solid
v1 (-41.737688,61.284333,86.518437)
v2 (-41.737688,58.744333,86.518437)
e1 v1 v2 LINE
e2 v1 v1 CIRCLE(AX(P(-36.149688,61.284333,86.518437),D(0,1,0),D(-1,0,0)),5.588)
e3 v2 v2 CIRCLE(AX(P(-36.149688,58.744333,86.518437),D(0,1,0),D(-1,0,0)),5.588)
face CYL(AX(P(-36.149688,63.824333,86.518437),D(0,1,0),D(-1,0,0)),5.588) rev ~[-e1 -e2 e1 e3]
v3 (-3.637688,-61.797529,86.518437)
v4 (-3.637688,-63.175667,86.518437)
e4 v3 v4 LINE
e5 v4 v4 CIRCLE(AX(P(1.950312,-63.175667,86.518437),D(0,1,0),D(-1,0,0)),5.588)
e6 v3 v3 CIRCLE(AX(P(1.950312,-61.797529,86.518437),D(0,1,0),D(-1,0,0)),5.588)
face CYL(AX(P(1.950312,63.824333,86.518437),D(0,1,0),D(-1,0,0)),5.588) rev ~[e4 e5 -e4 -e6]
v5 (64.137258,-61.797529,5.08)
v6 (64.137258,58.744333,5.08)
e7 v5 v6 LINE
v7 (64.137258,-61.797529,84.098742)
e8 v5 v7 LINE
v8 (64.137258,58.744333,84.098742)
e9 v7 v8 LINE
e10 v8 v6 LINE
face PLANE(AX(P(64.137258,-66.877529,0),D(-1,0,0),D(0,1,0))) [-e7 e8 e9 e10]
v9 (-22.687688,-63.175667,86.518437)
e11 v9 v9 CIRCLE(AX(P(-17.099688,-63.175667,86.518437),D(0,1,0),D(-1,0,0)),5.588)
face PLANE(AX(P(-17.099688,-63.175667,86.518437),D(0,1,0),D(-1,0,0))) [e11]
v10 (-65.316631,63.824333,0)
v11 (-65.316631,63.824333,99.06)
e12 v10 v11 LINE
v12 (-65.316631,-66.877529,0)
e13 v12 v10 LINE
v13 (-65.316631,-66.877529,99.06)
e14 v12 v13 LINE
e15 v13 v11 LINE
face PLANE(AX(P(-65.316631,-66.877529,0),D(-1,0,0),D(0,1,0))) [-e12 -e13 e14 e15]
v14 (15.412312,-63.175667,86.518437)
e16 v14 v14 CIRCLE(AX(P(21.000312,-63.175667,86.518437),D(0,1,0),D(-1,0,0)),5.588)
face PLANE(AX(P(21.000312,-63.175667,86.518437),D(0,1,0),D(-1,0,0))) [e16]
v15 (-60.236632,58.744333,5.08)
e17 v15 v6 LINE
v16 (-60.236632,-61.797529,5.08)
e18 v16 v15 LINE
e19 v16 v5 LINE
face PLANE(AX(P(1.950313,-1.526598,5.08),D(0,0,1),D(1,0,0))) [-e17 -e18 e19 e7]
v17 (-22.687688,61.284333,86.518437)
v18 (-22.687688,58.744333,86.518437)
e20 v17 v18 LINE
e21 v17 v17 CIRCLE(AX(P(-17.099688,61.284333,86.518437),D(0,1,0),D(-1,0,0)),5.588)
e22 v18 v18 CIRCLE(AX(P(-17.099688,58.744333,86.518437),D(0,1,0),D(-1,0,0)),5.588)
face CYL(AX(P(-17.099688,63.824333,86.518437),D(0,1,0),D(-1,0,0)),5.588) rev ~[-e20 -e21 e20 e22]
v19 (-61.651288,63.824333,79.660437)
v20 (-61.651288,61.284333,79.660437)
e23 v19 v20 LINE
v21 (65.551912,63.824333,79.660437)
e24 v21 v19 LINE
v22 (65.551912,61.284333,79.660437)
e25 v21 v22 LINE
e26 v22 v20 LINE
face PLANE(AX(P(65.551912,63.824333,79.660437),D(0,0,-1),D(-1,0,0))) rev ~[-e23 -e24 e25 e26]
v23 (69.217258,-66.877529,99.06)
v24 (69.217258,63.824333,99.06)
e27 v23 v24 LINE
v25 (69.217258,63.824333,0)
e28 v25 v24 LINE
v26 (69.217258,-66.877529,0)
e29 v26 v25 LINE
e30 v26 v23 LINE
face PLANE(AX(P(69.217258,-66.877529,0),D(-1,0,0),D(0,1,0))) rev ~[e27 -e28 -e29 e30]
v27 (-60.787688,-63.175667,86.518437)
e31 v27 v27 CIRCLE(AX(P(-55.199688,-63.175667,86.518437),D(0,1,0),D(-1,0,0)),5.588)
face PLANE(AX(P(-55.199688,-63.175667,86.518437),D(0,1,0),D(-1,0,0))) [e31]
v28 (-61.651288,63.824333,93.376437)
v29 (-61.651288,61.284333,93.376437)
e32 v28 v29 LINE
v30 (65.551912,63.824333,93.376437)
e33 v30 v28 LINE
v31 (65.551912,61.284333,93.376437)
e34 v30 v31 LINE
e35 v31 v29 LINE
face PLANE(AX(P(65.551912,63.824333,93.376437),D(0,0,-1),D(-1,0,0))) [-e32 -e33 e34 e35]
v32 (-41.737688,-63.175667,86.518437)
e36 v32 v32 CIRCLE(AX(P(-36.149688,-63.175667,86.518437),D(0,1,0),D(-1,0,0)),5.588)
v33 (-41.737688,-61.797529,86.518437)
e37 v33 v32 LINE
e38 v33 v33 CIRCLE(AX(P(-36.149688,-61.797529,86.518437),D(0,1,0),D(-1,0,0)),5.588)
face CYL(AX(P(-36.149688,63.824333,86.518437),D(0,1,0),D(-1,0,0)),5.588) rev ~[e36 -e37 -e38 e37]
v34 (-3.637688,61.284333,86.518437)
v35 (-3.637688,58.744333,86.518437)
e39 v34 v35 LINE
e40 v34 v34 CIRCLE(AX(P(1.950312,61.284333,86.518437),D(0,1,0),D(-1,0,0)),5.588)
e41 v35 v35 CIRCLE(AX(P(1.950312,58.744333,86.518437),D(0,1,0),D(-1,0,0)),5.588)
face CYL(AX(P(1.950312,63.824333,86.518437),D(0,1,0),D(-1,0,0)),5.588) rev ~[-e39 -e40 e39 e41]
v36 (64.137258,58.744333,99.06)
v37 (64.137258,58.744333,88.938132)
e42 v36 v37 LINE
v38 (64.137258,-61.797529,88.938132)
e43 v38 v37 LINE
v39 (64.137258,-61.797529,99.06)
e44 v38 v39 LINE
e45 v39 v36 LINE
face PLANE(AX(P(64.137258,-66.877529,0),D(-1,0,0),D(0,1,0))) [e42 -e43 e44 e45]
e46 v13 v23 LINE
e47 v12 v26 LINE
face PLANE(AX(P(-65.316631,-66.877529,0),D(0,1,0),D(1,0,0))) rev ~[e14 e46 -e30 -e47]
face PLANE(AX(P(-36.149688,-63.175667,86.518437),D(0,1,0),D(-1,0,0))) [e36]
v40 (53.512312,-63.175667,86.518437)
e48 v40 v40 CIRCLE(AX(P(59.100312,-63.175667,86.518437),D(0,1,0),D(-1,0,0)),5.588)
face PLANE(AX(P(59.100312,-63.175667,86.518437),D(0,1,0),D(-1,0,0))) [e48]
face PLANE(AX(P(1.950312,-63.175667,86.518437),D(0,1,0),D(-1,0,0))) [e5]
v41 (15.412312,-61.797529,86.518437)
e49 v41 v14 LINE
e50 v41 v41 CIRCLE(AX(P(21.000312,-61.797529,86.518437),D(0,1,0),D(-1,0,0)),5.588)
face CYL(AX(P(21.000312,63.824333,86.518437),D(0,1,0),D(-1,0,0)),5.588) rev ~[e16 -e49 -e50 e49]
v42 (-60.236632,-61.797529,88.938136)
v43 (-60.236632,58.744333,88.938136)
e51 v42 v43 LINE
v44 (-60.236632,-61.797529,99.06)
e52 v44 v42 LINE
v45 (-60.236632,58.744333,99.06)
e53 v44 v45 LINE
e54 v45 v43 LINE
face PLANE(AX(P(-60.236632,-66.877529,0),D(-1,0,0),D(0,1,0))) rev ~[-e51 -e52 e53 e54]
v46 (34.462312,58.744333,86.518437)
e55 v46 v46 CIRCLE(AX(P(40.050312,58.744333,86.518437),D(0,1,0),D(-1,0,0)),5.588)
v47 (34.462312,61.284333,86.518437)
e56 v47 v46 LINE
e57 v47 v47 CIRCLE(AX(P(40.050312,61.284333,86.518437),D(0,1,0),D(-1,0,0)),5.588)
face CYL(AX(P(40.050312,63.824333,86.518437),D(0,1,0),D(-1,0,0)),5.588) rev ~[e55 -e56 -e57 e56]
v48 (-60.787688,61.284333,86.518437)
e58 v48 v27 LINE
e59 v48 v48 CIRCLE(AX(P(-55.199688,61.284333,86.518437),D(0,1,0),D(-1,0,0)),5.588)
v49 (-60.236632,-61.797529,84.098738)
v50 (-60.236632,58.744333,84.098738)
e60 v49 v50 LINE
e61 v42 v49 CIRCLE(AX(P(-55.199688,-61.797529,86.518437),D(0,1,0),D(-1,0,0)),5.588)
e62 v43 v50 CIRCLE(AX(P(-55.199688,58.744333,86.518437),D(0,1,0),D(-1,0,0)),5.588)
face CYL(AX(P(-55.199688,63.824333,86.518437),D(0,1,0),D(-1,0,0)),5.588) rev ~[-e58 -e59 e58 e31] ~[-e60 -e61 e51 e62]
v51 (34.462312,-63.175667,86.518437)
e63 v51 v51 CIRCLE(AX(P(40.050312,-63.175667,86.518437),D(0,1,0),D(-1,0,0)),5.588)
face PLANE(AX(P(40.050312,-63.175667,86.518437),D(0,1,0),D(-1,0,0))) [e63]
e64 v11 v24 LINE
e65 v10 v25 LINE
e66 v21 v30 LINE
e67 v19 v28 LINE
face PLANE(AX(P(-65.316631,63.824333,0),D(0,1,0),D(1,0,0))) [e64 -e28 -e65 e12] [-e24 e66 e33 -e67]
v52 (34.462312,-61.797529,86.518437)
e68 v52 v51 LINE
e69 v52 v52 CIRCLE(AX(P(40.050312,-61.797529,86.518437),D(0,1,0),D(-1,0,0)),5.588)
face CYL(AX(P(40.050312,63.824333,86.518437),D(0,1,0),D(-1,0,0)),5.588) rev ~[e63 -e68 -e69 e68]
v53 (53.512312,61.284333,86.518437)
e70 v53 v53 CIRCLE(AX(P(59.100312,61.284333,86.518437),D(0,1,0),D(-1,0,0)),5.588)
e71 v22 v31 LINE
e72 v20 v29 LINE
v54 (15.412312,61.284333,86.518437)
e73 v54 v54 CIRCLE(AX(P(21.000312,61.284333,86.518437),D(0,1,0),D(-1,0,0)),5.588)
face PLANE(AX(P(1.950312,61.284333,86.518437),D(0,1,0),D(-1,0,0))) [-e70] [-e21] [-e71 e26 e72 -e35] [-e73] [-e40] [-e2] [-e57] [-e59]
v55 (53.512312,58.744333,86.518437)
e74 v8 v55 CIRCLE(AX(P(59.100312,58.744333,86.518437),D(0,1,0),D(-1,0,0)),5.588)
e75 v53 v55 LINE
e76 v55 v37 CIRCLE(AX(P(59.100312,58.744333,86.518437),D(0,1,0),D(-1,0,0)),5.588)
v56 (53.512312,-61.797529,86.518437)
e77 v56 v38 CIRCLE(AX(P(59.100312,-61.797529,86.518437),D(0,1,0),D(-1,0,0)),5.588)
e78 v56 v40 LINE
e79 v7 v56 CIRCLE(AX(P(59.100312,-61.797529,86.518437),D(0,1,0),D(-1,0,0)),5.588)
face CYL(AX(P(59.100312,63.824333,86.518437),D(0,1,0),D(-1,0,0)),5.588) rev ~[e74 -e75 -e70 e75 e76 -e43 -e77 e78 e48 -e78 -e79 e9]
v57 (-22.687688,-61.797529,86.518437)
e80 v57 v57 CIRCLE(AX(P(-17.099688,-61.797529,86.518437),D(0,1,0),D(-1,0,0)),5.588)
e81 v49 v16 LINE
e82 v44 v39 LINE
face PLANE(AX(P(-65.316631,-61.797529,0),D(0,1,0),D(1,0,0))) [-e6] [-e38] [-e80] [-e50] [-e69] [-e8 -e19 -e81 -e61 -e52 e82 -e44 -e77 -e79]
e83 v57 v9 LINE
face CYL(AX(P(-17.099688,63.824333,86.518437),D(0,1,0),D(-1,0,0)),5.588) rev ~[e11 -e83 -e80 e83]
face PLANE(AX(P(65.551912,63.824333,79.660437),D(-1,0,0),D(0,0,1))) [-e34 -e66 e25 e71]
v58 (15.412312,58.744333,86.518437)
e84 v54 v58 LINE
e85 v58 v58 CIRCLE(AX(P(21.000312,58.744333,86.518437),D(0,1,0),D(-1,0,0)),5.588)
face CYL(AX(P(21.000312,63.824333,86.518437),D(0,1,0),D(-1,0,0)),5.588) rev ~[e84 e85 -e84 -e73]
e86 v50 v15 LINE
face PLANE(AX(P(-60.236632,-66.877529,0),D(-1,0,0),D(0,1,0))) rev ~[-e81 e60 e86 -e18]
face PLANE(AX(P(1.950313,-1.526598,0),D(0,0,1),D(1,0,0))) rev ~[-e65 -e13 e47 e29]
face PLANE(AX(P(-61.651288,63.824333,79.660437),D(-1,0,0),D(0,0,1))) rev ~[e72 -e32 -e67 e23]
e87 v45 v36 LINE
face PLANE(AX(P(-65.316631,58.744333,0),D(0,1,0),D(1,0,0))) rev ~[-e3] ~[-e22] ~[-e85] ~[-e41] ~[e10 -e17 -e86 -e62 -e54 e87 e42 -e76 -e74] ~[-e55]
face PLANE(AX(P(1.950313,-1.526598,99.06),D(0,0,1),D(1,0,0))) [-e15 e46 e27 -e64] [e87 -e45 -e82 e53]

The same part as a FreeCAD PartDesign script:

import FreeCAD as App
import Part
import Sketcher
Q = App.Units.Quantity


def faces_at(feature, points):
    """Names of the faces that lie closest to the given points."""
    faces = feature.Shape.Faces
    near = lambda p: min(range(len(faces)), key=lambda i: faces[i].distToShape(Part.Vertex(*p))[0])
    return sorted({f"Face{near(p) + 1}" for p in points})


def add_polygon(sketch, points):
    """Adds a closed chain of lines whose ends are joined by coincident constraints."""
    first, n = sketch.GeometryCount, len(points)
    for a, b in zip(points, points[1:] + points[:1]):
        sketch.addGeometry(Part.LineSegment(App.Vector(*a, 0), App.Vector(*b, 0)), False)
    for i in range(n):
        sketch.addConstraint(Sketcher.Constraint("Coincident", first + i, 2, first + (i + 1) % n, 1))

doc = App.newDocument("Part")
body = doc.addObject("PartDesign::Body", "Body")

sketch1 = doc.addObject("Sketcher::SketchObject", "Sketch")
body.addObject(sketch1)
sketch1.AttachmentSupport = (doc.XY_Plane, [""])
sketch1.MapMode = "FlatFace"
add_polygon(sketch1, [(-65, 64), (-65, -67), (69, -67), (69, 64)])
sketch1.addConstraint([
    Sketcher.Constraint("Vertical", 0),
    Sketcher.Constraint("Horizontal", 1),
    Sketcher.Constraint("Vertical", 2),
    Sketcher.Constraint("Horizontal", 3),
    Sketcher.Constraint("DistanceX", 1, 1, 1, 2, Q("134.533889 mm")),
    Sketcher.Constraint("DistanceY", 0, 2, 0, 1, Q("130.701862 mm")),
    Sketcher.Constraint("DistanceX", 0, 2, -1, 1, Q("65.316631 mm")),
    Sketcher.Constraint("DistanceY", 0, 2, -1, 1, Q("66.877529 mm")),
])
pad1 = doc.addObject("PartDesign::Pad", "Pad")
body.addObject(pad1)
pad1.Profile = sketch1
pad1.Length = Q("3.9 in")
doc.recompute()

thickness = doc.addObject("PartDesign::Thickness", "Thickness")
body.addObject(thickness)
thickness.Base = (pad1, faces_at(pad1, [(1.95, -1.527, 99.06)]))
thickness.Value = Q("0.2 in")
thickness.Reversed = True
thickness.Join = "Arc"

sketch2 = doc.addObject("Sketcher::SketchObject", "Sketch001")
body.addObject(sketch2)
sketch2.AttachmentSupport = (doc.XZ_Plane, [""])
sketch2.MapMode = "FlatFace"
sketch2.AttachmentOffset = App.Placement(App.Vector(0, 0, -63.824333), App.Rotation())
sketch2.addGeometry([
    Part.Circle(App.Vector(2, 87, 0), App.Vector(0, 0, 1), 6),
    Part.Circle(App.Vector(21, 87, 0), App.Vector(0, 0, 1), 6),
    Part.Circle(App.Vector(40, 87, 0), App.Vector(0, 0, 1), 6),
    Part.Circle(App.Vector(59, 87, 0), App.Vector(0, 0, 1), 6),
    Part.Circle(App.Vector(-17, 87, 0), App.Vector(0, 0, 1), 6),
    Part.Circle(App.Vector(-36, 87, 0), App.Vector(0, 0, 1), 6),
    Part.Circle(App.Vector(-55, 87, 0), App.Vector(0, 0, 1), 6),
], False)
sketch2.addConstraint([
    Sketcher.Constraint("Equal", 0, 1),
    Sketcher.Constraint("Equal", 1, 2),
    Sketcher.Constraint("Equal", 2, 3),
    Sketcher.Constraint("Equal", 3, 4),
    Sketcher.Constraint("Equal", 4, 5),
    Sketcher.Constraint("Equal", 5, 6),
    Sketcher.Constraint("Horizontal", 0, 3, 1, 3),
    Sketcher.Constraint("Horizontal", 1, 3, 2, 3),
    Sketcher.Constraint("Horizontal", 2, 3, 3, 3),
    Sketcher.Constraint("Horizontal", 3, 3, 4, 3),
    Sketcher.Constraint("Horizontal", 4, 3, 5, 3),
    Sketcher.Constraint("Horizontal", 5, 3, 6, 3),
    Sketcher.Constraint("Diameter", 0, Q("0.44 in")),
    Sketcher.Constraint("DistanceX", 4, 3, 3, 3, Q("3 in")),
    Sketcher.Constraint("DistanceX", 5, 3, 2, 3, Q("3 in")),
    Sketcher.Constraint("DistanceX", 6, 3, 1, 3, Q("3 in")),
    Sketcher.Constraint("DistanceX", 0, 3, 2, 3, Q("1.5 in")),
    Sketcher.Constraint("DistanceX", 1, 3, 3, 3, Q("1.5 in")),
    Sketcher.Constraint("DistanceX", 0, 3, 1, 3, Q("0.75 in")),
    Sketcher.Constraint("DistanceX", -1, 1, 2, 3, Q("40.050312 mm")),
    Sketcher.Constraint("DistanceY", -1, 1, 0, 3, Q("86.518437 mm")),
])
pocket1 = doc.addObject("PartDesign::Pocket", "Pocket")
body.addObject(pocket1)
pocket1.Profile = sketch2
pocket1.Length = Q("5 in")
pocket1.Reversed = True

sketch3 = doc.addObject("Sketcher::SketchObject", "Sketch002")
body.addObject(sketch3)
sketch3.AttachmentSupport = (doc.XZ_Plane, [""])
sketch3.MapMode = "FlatFace"
sketch3.AttachmentOffset = App.Placement(App.Vector(0, 0, -63.824333), App.Rotation())
add_polygon(sketch3, [(66, 93), (66, 80), (-62, 80), (-62, 93)])
sketch3.addGeometry(Part.Circle(App.Vector(2, 87, 0), App.Vector(0, 0, 1), 6), False)
sketch3.addConstraint([
    Sketcher.Constraint("Vertical", 0),
    Sketcher.Constraint("Horizontal", 1),
    Sketcher.Constraint("Vertical", 2),
    Sketcher.Constraint("Horizontal", 3),
    Sketcher.Constraint("Diameter", 4, Q("0.44 in")),
    Sketcher.Constraint("DistanceY", 0, 2, 0, 1, Q("0.54 in")),
    Sketcher.Constraint("DistanceX", 1, 2, 1, 1, Q("5.008 in")),
    Sketcher.Constraint("DistanceY", 0, 2, 4, 3, Q("0.27 in")),
    Sketcher.Constraint("DistanceX", 4, 3, 0, 2, Q("2.504 in")),
    Sketcher.Constraint("DistanceX", -1, 1, 0, 2, Q("65.551912 mm")),
    Sketcher.Constraint("DistanceY", -1, 1, 4, 3, Q("86.518437 mm")),
])
pocket2 = doc.addObject("PartDesign::Pocket", "Pocket001")
body.addObject(pocket2)
pocket2.Profile = sketch3
pocket2.Length = Q("0.1 in")
pocket2.Reversed = True

doc.recompute()
